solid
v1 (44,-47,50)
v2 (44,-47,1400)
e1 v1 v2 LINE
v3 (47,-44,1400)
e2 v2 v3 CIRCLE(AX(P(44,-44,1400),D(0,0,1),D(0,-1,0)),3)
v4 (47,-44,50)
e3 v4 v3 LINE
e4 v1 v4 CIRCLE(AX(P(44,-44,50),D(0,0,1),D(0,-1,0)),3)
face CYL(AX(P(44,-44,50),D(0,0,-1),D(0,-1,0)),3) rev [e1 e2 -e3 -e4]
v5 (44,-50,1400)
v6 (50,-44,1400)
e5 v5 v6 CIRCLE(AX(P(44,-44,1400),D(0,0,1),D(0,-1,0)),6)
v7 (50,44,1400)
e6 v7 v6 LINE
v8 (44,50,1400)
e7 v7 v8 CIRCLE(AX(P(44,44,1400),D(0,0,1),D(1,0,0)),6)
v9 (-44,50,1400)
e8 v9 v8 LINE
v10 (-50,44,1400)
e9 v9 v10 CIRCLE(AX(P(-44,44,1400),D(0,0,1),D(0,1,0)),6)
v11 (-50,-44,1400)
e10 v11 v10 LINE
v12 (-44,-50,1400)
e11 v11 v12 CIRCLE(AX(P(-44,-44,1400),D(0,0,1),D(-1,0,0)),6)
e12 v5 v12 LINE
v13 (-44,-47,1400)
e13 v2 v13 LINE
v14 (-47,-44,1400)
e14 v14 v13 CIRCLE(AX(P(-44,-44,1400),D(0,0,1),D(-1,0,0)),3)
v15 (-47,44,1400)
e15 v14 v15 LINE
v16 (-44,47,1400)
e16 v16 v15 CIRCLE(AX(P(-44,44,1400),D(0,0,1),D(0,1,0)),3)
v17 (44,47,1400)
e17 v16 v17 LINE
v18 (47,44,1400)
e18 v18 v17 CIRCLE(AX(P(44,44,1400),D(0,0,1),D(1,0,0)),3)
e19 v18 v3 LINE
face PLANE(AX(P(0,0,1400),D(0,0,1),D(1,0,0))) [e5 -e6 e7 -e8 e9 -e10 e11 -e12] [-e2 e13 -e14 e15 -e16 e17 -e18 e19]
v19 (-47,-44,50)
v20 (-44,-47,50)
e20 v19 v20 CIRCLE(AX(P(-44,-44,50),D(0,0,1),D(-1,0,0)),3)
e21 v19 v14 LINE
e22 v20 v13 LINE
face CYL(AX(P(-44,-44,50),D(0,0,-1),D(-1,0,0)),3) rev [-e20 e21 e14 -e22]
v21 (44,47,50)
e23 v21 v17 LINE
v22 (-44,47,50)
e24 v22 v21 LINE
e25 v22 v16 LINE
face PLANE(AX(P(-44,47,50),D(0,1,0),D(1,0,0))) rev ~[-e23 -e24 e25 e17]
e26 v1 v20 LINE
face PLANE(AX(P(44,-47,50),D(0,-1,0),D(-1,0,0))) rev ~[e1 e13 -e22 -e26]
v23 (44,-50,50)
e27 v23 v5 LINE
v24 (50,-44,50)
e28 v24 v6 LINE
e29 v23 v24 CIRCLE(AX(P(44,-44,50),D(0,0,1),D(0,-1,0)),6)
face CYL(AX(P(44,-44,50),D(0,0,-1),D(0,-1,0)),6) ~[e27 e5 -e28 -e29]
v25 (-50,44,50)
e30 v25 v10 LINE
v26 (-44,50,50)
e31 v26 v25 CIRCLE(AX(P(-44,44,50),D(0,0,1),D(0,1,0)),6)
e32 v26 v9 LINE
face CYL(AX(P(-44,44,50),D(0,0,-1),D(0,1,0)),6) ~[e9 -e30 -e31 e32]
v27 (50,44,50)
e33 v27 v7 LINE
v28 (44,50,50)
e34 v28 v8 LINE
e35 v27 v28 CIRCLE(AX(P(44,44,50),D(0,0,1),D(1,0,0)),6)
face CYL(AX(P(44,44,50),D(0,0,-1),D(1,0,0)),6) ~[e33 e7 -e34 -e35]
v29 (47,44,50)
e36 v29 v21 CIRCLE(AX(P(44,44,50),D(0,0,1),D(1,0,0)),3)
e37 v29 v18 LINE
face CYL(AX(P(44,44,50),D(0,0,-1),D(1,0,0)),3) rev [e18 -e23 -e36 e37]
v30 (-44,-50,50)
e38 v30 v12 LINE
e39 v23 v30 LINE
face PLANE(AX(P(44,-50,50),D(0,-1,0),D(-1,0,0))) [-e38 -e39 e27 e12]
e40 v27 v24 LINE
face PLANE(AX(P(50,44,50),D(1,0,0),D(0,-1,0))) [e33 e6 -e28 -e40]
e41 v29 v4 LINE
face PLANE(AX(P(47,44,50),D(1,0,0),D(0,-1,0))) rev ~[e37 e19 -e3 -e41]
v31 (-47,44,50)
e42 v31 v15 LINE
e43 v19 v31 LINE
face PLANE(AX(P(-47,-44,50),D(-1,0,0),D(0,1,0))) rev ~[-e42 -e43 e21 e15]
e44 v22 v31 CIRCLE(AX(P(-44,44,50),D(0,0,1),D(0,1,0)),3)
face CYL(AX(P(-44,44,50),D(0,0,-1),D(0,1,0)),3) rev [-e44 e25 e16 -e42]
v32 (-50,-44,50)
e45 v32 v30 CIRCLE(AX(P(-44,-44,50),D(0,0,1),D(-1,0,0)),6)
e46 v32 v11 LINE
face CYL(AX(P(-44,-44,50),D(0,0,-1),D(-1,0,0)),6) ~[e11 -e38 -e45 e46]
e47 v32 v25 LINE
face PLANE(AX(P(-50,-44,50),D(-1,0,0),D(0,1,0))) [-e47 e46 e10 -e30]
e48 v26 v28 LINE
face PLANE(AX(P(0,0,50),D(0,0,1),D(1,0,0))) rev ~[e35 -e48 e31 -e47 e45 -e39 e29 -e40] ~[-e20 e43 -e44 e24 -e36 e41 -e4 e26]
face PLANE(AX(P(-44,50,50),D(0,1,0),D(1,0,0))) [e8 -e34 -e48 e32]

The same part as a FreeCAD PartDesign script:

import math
import FreeCAD as App
import Part
import Sketcher

V = App.Vector
Q = App.Units.Quantity

doc = App.newDocument("Part")
body = doc.addObject("PartDesign::Body", "Body")

# Sketch on XY plane
sketch1 = body.newObject("Sketcher::SketchObject", "Sketch")
sketch1.AttachmentSupport = (doc.getObject("XY_Plane"), [""])
sketch1.MapMode = "FlatFace"
sketch1.AttachmentOffset = App.Placement(V(0, 0, 50), App.Rotation())
sketch1.addGeometry(Part.LineSegment(V(-50, 44, 0), V(-50, -44, 0)), False)
sketch1.addGeometry(Part.ArcOfCircle(Part.Circle(V(-44, -44, 0), V(0, 0, 1), 6), math.radians(180), math.radians(270)), False)
sketch1.addGeometry(Part.LineSegment(V(-44, -50, 0), V(44, -50, 0)), False)
sketch1.addGeometry(Part.ArcOfCircle(Part.Circle(V(44, -44, 0), V(0, 0, 1), 6), math.radians(-90), math.radians(0)), False)
sketch1.addGeometry(Part.LineSegment(V(50, -44, 0), V(50, 44, 0)), False)
sketch1.addGeometry(Part.ArcOfCircle(Part.Circle(V(44, 44, 0), V(0, 0, 1), 6), math.radians(0), math.radians(90)), False)
sketch1.addGeometry(Part.LineSegment(V(44, 50, 0), V(-44, 50, 0)), False)
sketch1.addGeometry(Part.ArcOfCircle(Part.Circle(V(-44, 44, 0), V(0, 0, 1), 6), math.radians(90), math.radians(180)), False)
sketch1.addGeometry(Part.ArcOfCircle(Part.Circle(V(-44, 44, 0), V(0, 0, 1), 3), math.radians(90), math.radians(180)), False)
sketch1.addGeometry(Part.LineSegment(V(-44, 47, 0), V(44, 47, 0)), False)
sketch1.addGeometry(Part.ArcOfCircle(Part.Circle(V(44, 44, 0), V(0, 0, 1), 3), math.radians(0), math.radians(90)), False)
sketch1.addGeometry(Part.LineSegment(V(47, 44, 0), V(47, -44, 0)), False)
sketch1.addGeometry(Part.ArcOfCircle(Part.Circle(V(44, -44, 0), V(0, 0, 1), 3), math.radians(-90), math.radians(0)), False)
sketch1.addGeometry(Part.LineSegment(V(44, -47, 0), V(-44, -47, 0)), False)
sketch1.addGeometry(Part.ArcOfCircle(Part.Circle(V(-44, -44, 0), V(0, 0, 1), 3), math.radians(180), math.radians(270)), False)
sketch1.addGeometry(Part.LineSegment(V(-47, -44, 0), V(-47, 44, 0)), False)
sketch1.addConstraint(Sketcher.Constraint("Tangent", 0, 2, 1, 1))
sketch1.addConstraint(Sketcher.Constraint("Tangent", 1, 2, 2, 1))
sketch1.addConstraint(Sketcher.Constraint("Tangent", 2, 2, 3, 1))
sketch1.addConstraint(Sketcher.Constraint("Tangent", 3, 2, 4, 1))
sketch1.addConstraint(Sketcher.Constraint("Tangent", 4, 2, 5, 1))
sketch1.addConstraint(Sketcher.Constraint("Tangent", 5, 2, 6, 1))
sketch1.addConstraint(Sketcher.Constraint("Tangent", 6, 2, 7, 1))
sketch1.addConstraint(Sketcher.Constraint("Tangent", 7, 2, 0, 1))
sketch1.addConstraint(Sketcher.Constraint("Tangent", 8, 1, 9, 1))
sketch1.addConstraint(Sketcher.Constraint("Tangent", 9, 2, 10, 2))
sketch1.addConstraint(Sketcher.Constraint("Tangent", 10, 1, 11, 1))
sketch1.addConstraint(Sketcher.Constraint("Tangent", 11, 2, 12, 2))
sketch1.addConstraint(Sketcher.Constraint("Tangent", 12, 1, 13, 1))
sketch1.addConstraint(Sketcher.Constraint("Tangent", 13, 2, 14, 2))
sketch1.addConstraint(Sketcher.Constraint("Tangent", 14, 1, 15, 1))
sketch1.addConstraint(Sketcher.Constraint("Tangent", 15, 2, 8, 2))
sketch1.addConstraint(Sketcher.Constraint("Vertical", 0))
sketch1.addConstraint(Sketcher.Constraint("Horizontal", 2))
sketch1.addConstraint(Sketcher.Constraint("Vertical", 4))
sketch1.addConstraint(Sketcher.Constraint("Horizontal", 6))
sketch1.addConstraint(Sketcher.Constraint("Horizontal", 9))
sketch1.addConstraint(Sketcher.Constraint("Vertical", 11))
sketch1.addConstraint(Sketcher.Constraint("Horizontal", 13))
sketch1.addConstraint(Sketcher.Constraint("Vertical", 15))
sketch1.addConstraint(Sketcher.Constraint("Coincident", 8, 3, 7, 3))
sketch1.addConstraint(Sketcher.Constraint("Coincident", 10, 3, 5, 3))
sketch1.addConstraint(Sketcher.Constraint("Coincident", 12, 3, 3, 3))
sketch1.addConstraint(Sketcher.Constraint("Equal", 1, 3))
sketch1.addConstraint(Sketcher.Constraint("Equal", 3, 5))
sketch1.addConstraint(Sketcher.Constraint("Equal", 5, 7))
sketch1.addConstraint(Sketcher.Constraint("Equal", 12, 14))
sketch1.addConstraint(Sketcher.Constraint("Symmetric", 1, 3, 5, 3, -1, 1))
sketch1.addConstraint(Sketcher.Constraint("Equal", 13, 0))
sketch1.addConstraint(Sketcher.Constraint("Radius", 1, Q("6 mm")))
sketch1.addConstraint(Sketcher.Constraint("Radius", 8, Q("3 mm")))
sketch1.addConstraint(Sketcher.Constraint("DistanceX", 0, 2, -1, 1, Q("50 mm")))
pad1 = body.newObject("PartDesign::Pad", "Pad")
pad1.Profile = sketch1
pad1.Length = 1350

doc.recompute()
